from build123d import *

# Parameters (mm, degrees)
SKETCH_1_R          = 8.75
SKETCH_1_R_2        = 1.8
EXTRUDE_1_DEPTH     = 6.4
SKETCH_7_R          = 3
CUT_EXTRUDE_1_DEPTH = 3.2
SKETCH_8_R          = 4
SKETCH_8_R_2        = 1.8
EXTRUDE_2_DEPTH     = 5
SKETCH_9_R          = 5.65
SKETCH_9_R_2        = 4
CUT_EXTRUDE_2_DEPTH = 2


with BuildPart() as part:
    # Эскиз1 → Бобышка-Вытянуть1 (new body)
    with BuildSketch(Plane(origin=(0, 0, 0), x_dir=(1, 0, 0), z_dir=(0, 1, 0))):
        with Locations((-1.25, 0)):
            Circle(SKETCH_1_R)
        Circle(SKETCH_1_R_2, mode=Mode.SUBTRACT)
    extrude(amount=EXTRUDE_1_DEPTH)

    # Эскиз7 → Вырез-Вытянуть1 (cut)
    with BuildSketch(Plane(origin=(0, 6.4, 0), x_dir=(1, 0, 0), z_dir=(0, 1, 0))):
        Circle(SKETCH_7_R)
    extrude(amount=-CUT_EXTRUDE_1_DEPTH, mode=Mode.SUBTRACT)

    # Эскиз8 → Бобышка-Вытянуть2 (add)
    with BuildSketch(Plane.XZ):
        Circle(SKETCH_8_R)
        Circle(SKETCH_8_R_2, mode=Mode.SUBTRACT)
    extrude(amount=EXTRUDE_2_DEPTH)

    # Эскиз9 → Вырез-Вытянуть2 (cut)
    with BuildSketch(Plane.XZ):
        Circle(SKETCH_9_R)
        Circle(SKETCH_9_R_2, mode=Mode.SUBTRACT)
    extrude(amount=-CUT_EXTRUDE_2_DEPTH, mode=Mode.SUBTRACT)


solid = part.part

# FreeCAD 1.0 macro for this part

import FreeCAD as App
import Part
import Sketcher
Q = App.Units.Quantity

doc = App.newDocument("Part")
body = doc.addObject("PartDesign::Body", "Body")

# Sketch on XZ plane
sketch1 = doc.addObject("Sketcher::SketchObject", "Sketch")
body.addObject(sketch1)
sketch1.AttachmentSupport = (doc.XZ_Plane, [""])
sketch1.MapMode = "FlatFace"
sketch1.addGeometry([
    Part.Circle(App.Vector(-1.2, 0, 0), App.Vector(0, 0, 1), 8.8),
    Part.Circle(App.Vector(0, 0, 0), App.Vector(0, 0, 1), 1.8),
], False)
sketch1.addConstraint([
    Sketcher.Constraint("Coincident", 1, 3, -1, 1),
    Sketcher.Constraint("PointOnObject", 0, 3, -1),
    Sketcher.Constraint("Diameter", 0, Q("17.5 mm")),
    Sketcher.Constraint("Diameter", 1, Q("3.6 mm")),
    Sketcher.Constraint("DistanceX", 0, 3, -1, 1, Q("1.25 mm")),
])
pad1 = doc.addObject("PartDesign::Pad", "Pad")
body.addObject(pad1)
pad1.Profile = sketch1
pad1.Length = 6.4
pad1.Reversed = True

# Sketch on XZ plane
sketch2 = doc.addObject("Sketcher::SketchObject", "Sketch001")
body.addObject(sketch2)
sketch2.AttachmentSupport = (doc.XZ_Plane, [""])
sketch2.MapMode = "FlatFace"
sketch2.AttachmentOffset = App.Placement(App.Vector(0, 0, -6.4), App.Rotation())
sketch2.addGeometry(Part.Circle(App.Vector(0, 0, 0), App.Vector(0, 0, 1), 3), False)
sketch2.addConstraint([
    Sketcher.Constraint("Coincident", 0, 3, -1, 1),
    Sketcher.Constraint("Diameter", 0, Q("6 mm")),
])
pocket1 = doc.addObject("PartDesign::Pocket", "Pocket")
body.addObject(pocket1)
pocket1.Profile = sketch2
pocket1.Length = 3.2
pocket1.Reversed = True

# Sketch on XZ plane
sketch3 = doc.addObject("Sketcher::SketchObject", "Sketch002")
body.addObject(sketch3)
sketch3.AttachmentSupport = (doc.XZ_Plane, [""])
sketch3.MapMode = "FlatFace"
sketch3.addGeometry([
    Part.Circle(App.Vector(0, 0, 0), App.Vector(0, 0, 1), 4),
    Part.Circle(App.Vector(0, 0, 0), App.Vector(0, 0, 1), 1.8),
], False)
sketch3.addConstraint([
    Sketcher.Constraint("Coincident", 0, 3, -1, 1),
    Sketcher.Constraint("Coincident", 1, 3, -1, 1),
    Sketcher.Constraint("Diameter", 0, Q("8 mm")),
    Sketcher.Constraint("Diameter", 1, Q("3.6 mm")),
])
pad2 = doc.addObject("PartDesign::Pad", "Pad001")
body.addObject(pad2)
pad2.Profile = sketch3
pad2.Length = 5

# Sketch on XZ plane
sketch4 = doc.addObject("Sketcher::SketchObject", "Sketch003")
body.addObject(sketch4)
sketch4.AttachmentSupport = (doc.XZ_Plane, [""])
sketch4.MapMode = "FlatFace"
sketch4.addGeometry([
    Part.Circle(App.Vector(0, 0, 0), App.Vector(0, 0, 1), 5.7),
    Part.Circle(App.Vector(0, 0, 0), App.Vector(0, 0, 1), 4),
], False)
sketch4.addConstraint([
    Sketcher.Constraint("Coincident", 0, 3, -1, 1),
    Sketcher.Constraint("Coincident", 1, 3, -1, 1),
    Sketcher.Constraint("Diameter", 1, Q("8 mm")),
    Sketcher.Constraint("Diameter", 0, Q("11.3 mm")),
])
pocket2 = doc.addObject("PartDesign::Pocket", "Pocket001")
body.addObject(pocket2)
pocket2.Profile = sketch4
pocket2.Length = 2

doc.recompute()
